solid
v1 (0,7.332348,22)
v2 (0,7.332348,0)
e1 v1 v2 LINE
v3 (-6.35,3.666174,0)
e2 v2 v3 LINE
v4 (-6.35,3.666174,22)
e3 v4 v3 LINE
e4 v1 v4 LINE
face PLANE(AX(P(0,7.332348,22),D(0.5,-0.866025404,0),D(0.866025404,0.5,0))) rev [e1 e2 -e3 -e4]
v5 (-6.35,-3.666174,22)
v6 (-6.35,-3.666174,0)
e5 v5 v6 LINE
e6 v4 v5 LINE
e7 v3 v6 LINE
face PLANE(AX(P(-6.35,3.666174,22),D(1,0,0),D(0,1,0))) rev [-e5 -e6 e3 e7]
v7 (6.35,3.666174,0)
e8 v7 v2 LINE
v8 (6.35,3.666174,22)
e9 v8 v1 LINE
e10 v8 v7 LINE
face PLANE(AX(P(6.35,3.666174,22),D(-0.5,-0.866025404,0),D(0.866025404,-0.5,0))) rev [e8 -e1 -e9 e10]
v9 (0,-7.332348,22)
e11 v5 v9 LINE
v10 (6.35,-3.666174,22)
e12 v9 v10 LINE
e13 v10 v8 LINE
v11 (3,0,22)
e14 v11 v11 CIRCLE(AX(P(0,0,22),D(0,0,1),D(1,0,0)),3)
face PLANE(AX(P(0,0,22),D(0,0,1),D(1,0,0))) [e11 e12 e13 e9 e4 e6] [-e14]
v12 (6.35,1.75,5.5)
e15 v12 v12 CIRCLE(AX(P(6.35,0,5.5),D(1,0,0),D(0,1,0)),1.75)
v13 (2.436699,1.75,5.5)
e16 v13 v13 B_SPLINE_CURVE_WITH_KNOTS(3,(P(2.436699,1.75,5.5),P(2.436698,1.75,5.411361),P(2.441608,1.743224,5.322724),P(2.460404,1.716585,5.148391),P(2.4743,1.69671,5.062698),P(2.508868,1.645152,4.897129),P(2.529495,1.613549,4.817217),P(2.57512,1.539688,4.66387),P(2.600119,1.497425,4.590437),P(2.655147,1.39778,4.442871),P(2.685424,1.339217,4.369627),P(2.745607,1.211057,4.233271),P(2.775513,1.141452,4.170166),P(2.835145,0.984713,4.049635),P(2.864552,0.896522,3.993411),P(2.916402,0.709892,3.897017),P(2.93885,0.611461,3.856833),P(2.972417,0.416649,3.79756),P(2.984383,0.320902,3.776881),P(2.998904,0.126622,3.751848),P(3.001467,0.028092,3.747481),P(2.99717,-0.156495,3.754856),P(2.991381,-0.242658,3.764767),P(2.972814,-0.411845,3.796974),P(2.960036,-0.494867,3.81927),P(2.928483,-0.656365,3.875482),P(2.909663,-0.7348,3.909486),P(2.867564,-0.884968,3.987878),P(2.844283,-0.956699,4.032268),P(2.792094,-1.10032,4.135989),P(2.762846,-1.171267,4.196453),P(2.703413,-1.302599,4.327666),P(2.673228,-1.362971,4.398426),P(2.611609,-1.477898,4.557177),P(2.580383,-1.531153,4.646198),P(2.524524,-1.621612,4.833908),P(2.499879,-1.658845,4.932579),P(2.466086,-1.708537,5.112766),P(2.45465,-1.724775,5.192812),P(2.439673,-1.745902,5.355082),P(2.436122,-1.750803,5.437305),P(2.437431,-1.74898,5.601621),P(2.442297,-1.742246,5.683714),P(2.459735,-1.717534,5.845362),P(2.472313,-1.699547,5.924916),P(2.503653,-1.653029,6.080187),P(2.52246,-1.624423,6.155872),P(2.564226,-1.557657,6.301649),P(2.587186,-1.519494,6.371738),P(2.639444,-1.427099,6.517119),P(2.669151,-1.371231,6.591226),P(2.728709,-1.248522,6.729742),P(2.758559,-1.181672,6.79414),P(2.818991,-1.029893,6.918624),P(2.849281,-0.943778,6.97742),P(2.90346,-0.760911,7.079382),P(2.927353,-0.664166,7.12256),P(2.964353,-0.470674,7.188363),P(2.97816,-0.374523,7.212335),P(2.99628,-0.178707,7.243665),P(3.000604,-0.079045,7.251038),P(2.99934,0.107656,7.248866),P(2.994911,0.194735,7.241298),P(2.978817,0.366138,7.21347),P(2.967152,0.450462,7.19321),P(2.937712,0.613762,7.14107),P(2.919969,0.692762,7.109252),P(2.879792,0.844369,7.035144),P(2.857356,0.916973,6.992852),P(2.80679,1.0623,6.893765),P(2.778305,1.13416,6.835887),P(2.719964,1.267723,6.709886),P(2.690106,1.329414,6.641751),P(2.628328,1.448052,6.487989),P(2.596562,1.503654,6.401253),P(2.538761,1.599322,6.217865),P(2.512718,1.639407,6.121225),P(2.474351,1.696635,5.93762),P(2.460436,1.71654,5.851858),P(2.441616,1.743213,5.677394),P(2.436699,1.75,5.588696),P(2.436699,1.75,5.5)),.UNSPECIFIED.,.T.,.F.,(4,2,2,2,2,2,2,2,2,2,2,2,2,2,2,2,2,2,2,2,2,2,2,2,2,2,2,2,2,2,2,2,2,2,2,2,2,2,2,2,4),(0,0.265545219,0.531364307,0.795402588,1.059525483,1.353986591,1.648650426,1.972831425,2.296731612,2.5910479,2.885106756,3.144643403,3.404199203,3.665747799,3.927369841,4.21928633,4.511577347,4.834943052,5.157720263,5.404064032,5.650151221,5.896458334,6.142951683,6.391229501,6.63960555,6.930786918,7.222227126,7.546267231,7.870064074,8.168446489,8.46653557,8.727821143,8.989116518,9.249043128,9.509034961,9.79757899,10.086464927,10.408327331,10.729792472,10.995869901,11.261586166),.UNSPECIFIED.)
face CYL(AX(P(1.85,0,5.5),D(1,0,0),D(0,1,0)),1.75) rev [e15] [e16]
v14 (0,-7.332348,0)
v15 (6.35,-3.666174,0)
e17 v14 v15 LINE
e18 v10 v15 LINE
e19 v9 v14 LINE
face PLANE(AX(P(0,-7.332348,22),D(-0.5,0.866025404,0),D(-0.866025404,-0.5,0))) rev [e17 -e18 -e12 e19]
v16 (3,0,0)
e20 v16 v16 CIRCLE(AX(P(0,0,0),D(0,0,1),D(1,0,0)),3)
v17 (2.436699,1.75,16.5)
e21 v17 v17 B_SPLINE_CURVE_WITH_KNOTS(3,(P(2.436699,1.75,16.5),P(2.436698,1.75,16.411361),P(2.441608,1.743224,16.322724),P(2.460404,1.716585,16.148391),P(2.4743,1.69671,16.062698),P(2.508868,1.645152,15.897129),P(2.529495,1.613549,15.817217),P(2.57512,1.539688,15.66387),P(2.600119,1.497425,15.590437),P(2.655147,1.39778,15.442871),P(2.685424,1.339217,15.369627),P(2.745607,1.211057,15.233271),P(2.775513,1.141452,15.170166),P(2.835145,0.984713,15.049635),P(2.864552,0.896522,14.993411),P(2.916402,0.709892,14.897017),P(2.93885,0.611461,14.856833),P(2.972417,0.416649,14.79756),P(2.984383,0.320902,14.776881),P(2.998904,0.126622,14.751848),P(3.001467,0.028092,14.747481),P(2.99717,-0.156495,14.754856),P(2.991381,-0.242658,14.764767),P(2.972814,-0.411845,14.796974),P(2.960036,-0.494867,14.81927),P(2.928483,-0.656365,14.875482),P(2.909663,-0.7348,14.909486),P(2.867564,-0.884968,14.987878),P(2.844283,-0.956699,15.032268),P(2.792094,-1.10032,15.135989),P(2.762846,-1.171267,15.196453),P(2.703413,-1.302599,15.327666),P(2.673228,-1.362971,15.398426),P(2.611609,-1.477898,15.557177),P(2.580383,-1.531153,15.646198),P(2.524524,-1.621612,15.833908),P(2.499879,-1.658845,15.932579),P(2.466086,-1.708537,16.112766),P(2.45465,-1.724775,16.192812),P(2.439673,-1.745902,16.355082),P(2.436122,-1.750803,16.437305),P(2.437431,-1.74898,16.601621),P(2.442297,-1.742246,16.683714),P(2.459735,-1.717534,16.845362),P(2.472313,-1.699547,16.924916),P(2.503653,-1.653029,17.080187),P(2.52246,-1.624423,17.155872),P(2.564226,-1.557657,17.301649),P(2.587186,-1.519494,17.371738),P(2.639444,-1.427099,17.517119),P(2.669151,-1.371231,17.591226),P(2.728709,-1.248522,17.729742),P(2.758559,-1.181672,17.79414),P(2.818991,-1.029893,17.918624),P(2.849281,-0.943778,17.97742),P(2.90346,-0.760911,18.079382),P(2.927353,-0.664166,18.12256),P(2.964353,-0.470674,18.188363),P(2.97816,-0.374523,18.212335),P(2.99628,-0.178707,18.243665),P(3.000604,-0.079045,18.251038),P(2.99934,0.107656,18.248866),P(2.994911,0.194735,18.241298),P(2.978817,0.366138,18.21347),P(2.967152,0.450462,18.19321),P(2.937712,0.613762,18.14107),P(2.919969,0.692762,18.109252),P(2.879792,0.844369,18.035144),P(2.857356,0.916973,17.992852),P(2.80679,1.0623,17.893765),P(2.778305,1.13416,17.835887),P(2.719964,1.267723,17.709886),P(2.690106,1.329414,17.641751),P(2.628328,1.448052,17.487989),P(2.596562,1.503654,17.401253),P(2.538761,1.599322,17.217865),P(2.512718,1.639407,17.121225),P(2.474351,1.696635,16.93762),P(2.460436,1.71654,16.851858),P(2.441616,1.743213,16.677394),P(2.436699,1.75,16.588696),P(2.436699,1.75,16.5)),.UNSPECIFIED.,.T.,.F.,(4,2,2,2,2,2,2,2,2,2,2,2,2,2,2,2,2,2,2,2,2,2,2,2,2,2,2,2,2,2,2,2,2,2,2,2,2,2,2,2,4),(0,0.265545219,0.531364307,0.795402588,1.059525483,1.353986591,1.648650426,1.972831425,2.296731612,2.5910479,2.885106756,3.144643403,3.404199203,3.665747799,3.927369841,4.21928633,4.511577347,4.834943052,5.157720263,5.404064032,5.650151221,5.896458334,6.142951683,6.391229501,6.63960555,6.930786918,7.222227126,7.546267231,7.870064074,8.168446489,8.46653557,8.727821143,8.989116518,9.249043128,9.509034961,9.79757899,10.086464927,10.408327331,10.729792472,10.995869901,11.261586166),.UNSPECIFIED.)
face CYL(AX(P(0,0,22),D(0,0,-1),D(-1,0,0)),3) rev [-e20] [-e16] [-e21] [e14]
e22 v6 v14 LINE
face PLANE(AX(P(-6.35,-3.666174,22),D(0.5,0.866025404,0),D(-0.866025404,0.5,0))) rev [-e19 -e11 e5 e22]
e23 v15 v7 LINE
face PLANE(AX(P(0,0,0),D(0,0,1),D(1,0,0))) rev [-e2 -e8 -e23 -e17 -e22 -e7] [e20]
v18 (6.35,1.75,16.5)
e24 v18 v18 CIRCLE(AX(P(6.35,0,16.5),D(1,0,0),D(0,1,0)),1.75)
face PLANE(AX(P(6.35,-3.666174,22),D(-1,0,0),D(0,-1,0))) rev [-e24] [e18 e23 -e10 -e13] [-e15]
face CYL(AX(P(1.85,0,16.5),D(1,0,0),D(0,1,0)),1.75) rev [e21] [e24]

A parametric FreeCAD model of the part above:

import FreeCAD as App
import Part
import Sketcher
Q = App.Units.Quantity

doc = App.newDocument("Part")
body = doc.addObject("PartDesign::Body", "Body")

sketch1 = body.newObject("Sketcher::SketchObject", "Sketch")
sketch1.AttachmentSupport = (doc.getObject("XY_Plane"), [""])
sketch1.MapMode = "FlatFace"
sketch1.addGeometry(Part.LineSegment(App.Vector(0, 7.3, 0), App.Vector(-6.3, 3.7, 0)), False)
sketch1.addGeometry(Part.LineSegment(App.Vector(-6.3, 3.7, 0), App.Vector(-6.3, -3.7, 0)), False)
sketch1.addGeometry(Part.LineSegment(App.Vector(-6.3, -3.7, 0), App.Vector(0, -7.3, 0)), False)
sketch1.addGeometry(Part.LineSegment(App.Vector(0, -7.3, 0), App.Vector(6.3, -3.7, 0)), False)
sketch1.addGeometry(Part.LineSegment(App.Vector(6.3, -3.7, 0), App.Vector(6.3, 3.7, 0)), False)
sketch1.addGeometry(Part.LineSegment(App.Vector(6.3, 3.7, 0), App.Vector(0, 7.3, 0)), False)
sketch1.addGeometry(Part.Circle(App.Vector(0, 0, 0), App.Vector(0, 0, 1), 3), False)
sketch1.addConstraint(Sketcher.Constraint("Coincident", 0, 2, 1, 1))
sketch1.addConstraint(Sketcher.Constraint("Coincident", 1, 2, 2, 1))
sketch1.addConstraint(Sketcher.Constraint("Coincident", 2, 2, 3, 1))
sketch1.addConstraint(Sketcher.Constraint("Coincident", 3, 2, 4, 1))
sketch1.addConstraint(Sketcher.Constraint("Coincident", 4, 2, 5, 1))
sketch1.addConstraint(Sketcher.Constraint("Coincident", 5, 2, 0, 1))
sketch1.addConstraint(Sketcher.Constraint("Vertical", 1))
sketch1.addConstraint(Sketcher.Constraint("Vertical", 4))
sketch1.addConstraint(Sketcher.Constraint("Coincident", 6, 3, -1, 1))
sketch1.addConstraint(Sketcher.Constraint("Symmetric", 0, 2, 3, 2, -1, 1))
sketch1.addConstraint(Sketcher.Constraint("Symmetric", 2, 2, 5, 2, -1, 1))
sketch1.addConstraint(Sketcher.Constraint("PointOnObject", 2, 2, -2))
sketch1.addConstraint(Sketcher.Constraint("Parallel", 2, 5))
sketch1.addConstraint(Sketcher.Constraint("Horizontal", 1, 2, 3, 2))
sketch1.addConstraint(Sketcher.Constraint("Diameter", 6, Q("6 mm")))
sketch1.addConstraint(Sketcher.Constraint("Angle", 0, Q("-150 deg")))
sketch1.addConstraint(Sketcher.Constraint("DistanceX", 1, 2, 3, 2, Q("12.7 mm")))
sketch1.addConstraint(Sketcher.Constraint("DistanceY", 1, 2, 1, 1, Q("7.332348 mm")))
pad1 = body.newObject("PartDesign::Pad", "Pad")
pad1.Profile = sketch1
pad1.Length = 22

sketch2 = body.newObject("Sketcher::SketchObject", "Sketch001")
sketch2.AttachmentSupport = (doc.getObject("YZ_Plane"), [""])
sketch2.MapMode = "FlatFace"
sketch2.AttachmentOffset = App.Placement(App.Vector(0, 0, 6.35), App.Rotation())
sketch2.addGeometry(Part.Circle(App.Vector(0, 5.5, 0), App.Vector(0, 0, 1), 1.8), False)
sketch2.addGeometry(Part.Circle(App.Vector(0, 16.5, 0), App.Vector(0, 0, 1), 1.8), False)
sketch2.addConstraint(Sketcher.Constraint("Equal", 0, 1))
sketch2.addConstraint(Sketcher.Constraint("PointOnObject", 0, 3, -2))
sketch2.addConstraint(Sketcher.Constraint("PointOnObject", 1, 3, -2))
sketch2.addConstraint(Sketcher.Constraint("Diameter", 0, Q("3.5 mm")))
sketch2.addConstraint(Sketcher.Constraint("DistanceY", 0, 3, 1, 3, Q("11 mm")))
sketch2.addConstraint(Sketcher.Constraint("DistanceY", -1, 1, 0, 3, Q("5.5 mm")))
pocket1 = body.newObject("PartDesign::Pocket", "Pocket")
pocket1.Profile = sketch2
pocket1.Length = 4.5

doc.recompute()
